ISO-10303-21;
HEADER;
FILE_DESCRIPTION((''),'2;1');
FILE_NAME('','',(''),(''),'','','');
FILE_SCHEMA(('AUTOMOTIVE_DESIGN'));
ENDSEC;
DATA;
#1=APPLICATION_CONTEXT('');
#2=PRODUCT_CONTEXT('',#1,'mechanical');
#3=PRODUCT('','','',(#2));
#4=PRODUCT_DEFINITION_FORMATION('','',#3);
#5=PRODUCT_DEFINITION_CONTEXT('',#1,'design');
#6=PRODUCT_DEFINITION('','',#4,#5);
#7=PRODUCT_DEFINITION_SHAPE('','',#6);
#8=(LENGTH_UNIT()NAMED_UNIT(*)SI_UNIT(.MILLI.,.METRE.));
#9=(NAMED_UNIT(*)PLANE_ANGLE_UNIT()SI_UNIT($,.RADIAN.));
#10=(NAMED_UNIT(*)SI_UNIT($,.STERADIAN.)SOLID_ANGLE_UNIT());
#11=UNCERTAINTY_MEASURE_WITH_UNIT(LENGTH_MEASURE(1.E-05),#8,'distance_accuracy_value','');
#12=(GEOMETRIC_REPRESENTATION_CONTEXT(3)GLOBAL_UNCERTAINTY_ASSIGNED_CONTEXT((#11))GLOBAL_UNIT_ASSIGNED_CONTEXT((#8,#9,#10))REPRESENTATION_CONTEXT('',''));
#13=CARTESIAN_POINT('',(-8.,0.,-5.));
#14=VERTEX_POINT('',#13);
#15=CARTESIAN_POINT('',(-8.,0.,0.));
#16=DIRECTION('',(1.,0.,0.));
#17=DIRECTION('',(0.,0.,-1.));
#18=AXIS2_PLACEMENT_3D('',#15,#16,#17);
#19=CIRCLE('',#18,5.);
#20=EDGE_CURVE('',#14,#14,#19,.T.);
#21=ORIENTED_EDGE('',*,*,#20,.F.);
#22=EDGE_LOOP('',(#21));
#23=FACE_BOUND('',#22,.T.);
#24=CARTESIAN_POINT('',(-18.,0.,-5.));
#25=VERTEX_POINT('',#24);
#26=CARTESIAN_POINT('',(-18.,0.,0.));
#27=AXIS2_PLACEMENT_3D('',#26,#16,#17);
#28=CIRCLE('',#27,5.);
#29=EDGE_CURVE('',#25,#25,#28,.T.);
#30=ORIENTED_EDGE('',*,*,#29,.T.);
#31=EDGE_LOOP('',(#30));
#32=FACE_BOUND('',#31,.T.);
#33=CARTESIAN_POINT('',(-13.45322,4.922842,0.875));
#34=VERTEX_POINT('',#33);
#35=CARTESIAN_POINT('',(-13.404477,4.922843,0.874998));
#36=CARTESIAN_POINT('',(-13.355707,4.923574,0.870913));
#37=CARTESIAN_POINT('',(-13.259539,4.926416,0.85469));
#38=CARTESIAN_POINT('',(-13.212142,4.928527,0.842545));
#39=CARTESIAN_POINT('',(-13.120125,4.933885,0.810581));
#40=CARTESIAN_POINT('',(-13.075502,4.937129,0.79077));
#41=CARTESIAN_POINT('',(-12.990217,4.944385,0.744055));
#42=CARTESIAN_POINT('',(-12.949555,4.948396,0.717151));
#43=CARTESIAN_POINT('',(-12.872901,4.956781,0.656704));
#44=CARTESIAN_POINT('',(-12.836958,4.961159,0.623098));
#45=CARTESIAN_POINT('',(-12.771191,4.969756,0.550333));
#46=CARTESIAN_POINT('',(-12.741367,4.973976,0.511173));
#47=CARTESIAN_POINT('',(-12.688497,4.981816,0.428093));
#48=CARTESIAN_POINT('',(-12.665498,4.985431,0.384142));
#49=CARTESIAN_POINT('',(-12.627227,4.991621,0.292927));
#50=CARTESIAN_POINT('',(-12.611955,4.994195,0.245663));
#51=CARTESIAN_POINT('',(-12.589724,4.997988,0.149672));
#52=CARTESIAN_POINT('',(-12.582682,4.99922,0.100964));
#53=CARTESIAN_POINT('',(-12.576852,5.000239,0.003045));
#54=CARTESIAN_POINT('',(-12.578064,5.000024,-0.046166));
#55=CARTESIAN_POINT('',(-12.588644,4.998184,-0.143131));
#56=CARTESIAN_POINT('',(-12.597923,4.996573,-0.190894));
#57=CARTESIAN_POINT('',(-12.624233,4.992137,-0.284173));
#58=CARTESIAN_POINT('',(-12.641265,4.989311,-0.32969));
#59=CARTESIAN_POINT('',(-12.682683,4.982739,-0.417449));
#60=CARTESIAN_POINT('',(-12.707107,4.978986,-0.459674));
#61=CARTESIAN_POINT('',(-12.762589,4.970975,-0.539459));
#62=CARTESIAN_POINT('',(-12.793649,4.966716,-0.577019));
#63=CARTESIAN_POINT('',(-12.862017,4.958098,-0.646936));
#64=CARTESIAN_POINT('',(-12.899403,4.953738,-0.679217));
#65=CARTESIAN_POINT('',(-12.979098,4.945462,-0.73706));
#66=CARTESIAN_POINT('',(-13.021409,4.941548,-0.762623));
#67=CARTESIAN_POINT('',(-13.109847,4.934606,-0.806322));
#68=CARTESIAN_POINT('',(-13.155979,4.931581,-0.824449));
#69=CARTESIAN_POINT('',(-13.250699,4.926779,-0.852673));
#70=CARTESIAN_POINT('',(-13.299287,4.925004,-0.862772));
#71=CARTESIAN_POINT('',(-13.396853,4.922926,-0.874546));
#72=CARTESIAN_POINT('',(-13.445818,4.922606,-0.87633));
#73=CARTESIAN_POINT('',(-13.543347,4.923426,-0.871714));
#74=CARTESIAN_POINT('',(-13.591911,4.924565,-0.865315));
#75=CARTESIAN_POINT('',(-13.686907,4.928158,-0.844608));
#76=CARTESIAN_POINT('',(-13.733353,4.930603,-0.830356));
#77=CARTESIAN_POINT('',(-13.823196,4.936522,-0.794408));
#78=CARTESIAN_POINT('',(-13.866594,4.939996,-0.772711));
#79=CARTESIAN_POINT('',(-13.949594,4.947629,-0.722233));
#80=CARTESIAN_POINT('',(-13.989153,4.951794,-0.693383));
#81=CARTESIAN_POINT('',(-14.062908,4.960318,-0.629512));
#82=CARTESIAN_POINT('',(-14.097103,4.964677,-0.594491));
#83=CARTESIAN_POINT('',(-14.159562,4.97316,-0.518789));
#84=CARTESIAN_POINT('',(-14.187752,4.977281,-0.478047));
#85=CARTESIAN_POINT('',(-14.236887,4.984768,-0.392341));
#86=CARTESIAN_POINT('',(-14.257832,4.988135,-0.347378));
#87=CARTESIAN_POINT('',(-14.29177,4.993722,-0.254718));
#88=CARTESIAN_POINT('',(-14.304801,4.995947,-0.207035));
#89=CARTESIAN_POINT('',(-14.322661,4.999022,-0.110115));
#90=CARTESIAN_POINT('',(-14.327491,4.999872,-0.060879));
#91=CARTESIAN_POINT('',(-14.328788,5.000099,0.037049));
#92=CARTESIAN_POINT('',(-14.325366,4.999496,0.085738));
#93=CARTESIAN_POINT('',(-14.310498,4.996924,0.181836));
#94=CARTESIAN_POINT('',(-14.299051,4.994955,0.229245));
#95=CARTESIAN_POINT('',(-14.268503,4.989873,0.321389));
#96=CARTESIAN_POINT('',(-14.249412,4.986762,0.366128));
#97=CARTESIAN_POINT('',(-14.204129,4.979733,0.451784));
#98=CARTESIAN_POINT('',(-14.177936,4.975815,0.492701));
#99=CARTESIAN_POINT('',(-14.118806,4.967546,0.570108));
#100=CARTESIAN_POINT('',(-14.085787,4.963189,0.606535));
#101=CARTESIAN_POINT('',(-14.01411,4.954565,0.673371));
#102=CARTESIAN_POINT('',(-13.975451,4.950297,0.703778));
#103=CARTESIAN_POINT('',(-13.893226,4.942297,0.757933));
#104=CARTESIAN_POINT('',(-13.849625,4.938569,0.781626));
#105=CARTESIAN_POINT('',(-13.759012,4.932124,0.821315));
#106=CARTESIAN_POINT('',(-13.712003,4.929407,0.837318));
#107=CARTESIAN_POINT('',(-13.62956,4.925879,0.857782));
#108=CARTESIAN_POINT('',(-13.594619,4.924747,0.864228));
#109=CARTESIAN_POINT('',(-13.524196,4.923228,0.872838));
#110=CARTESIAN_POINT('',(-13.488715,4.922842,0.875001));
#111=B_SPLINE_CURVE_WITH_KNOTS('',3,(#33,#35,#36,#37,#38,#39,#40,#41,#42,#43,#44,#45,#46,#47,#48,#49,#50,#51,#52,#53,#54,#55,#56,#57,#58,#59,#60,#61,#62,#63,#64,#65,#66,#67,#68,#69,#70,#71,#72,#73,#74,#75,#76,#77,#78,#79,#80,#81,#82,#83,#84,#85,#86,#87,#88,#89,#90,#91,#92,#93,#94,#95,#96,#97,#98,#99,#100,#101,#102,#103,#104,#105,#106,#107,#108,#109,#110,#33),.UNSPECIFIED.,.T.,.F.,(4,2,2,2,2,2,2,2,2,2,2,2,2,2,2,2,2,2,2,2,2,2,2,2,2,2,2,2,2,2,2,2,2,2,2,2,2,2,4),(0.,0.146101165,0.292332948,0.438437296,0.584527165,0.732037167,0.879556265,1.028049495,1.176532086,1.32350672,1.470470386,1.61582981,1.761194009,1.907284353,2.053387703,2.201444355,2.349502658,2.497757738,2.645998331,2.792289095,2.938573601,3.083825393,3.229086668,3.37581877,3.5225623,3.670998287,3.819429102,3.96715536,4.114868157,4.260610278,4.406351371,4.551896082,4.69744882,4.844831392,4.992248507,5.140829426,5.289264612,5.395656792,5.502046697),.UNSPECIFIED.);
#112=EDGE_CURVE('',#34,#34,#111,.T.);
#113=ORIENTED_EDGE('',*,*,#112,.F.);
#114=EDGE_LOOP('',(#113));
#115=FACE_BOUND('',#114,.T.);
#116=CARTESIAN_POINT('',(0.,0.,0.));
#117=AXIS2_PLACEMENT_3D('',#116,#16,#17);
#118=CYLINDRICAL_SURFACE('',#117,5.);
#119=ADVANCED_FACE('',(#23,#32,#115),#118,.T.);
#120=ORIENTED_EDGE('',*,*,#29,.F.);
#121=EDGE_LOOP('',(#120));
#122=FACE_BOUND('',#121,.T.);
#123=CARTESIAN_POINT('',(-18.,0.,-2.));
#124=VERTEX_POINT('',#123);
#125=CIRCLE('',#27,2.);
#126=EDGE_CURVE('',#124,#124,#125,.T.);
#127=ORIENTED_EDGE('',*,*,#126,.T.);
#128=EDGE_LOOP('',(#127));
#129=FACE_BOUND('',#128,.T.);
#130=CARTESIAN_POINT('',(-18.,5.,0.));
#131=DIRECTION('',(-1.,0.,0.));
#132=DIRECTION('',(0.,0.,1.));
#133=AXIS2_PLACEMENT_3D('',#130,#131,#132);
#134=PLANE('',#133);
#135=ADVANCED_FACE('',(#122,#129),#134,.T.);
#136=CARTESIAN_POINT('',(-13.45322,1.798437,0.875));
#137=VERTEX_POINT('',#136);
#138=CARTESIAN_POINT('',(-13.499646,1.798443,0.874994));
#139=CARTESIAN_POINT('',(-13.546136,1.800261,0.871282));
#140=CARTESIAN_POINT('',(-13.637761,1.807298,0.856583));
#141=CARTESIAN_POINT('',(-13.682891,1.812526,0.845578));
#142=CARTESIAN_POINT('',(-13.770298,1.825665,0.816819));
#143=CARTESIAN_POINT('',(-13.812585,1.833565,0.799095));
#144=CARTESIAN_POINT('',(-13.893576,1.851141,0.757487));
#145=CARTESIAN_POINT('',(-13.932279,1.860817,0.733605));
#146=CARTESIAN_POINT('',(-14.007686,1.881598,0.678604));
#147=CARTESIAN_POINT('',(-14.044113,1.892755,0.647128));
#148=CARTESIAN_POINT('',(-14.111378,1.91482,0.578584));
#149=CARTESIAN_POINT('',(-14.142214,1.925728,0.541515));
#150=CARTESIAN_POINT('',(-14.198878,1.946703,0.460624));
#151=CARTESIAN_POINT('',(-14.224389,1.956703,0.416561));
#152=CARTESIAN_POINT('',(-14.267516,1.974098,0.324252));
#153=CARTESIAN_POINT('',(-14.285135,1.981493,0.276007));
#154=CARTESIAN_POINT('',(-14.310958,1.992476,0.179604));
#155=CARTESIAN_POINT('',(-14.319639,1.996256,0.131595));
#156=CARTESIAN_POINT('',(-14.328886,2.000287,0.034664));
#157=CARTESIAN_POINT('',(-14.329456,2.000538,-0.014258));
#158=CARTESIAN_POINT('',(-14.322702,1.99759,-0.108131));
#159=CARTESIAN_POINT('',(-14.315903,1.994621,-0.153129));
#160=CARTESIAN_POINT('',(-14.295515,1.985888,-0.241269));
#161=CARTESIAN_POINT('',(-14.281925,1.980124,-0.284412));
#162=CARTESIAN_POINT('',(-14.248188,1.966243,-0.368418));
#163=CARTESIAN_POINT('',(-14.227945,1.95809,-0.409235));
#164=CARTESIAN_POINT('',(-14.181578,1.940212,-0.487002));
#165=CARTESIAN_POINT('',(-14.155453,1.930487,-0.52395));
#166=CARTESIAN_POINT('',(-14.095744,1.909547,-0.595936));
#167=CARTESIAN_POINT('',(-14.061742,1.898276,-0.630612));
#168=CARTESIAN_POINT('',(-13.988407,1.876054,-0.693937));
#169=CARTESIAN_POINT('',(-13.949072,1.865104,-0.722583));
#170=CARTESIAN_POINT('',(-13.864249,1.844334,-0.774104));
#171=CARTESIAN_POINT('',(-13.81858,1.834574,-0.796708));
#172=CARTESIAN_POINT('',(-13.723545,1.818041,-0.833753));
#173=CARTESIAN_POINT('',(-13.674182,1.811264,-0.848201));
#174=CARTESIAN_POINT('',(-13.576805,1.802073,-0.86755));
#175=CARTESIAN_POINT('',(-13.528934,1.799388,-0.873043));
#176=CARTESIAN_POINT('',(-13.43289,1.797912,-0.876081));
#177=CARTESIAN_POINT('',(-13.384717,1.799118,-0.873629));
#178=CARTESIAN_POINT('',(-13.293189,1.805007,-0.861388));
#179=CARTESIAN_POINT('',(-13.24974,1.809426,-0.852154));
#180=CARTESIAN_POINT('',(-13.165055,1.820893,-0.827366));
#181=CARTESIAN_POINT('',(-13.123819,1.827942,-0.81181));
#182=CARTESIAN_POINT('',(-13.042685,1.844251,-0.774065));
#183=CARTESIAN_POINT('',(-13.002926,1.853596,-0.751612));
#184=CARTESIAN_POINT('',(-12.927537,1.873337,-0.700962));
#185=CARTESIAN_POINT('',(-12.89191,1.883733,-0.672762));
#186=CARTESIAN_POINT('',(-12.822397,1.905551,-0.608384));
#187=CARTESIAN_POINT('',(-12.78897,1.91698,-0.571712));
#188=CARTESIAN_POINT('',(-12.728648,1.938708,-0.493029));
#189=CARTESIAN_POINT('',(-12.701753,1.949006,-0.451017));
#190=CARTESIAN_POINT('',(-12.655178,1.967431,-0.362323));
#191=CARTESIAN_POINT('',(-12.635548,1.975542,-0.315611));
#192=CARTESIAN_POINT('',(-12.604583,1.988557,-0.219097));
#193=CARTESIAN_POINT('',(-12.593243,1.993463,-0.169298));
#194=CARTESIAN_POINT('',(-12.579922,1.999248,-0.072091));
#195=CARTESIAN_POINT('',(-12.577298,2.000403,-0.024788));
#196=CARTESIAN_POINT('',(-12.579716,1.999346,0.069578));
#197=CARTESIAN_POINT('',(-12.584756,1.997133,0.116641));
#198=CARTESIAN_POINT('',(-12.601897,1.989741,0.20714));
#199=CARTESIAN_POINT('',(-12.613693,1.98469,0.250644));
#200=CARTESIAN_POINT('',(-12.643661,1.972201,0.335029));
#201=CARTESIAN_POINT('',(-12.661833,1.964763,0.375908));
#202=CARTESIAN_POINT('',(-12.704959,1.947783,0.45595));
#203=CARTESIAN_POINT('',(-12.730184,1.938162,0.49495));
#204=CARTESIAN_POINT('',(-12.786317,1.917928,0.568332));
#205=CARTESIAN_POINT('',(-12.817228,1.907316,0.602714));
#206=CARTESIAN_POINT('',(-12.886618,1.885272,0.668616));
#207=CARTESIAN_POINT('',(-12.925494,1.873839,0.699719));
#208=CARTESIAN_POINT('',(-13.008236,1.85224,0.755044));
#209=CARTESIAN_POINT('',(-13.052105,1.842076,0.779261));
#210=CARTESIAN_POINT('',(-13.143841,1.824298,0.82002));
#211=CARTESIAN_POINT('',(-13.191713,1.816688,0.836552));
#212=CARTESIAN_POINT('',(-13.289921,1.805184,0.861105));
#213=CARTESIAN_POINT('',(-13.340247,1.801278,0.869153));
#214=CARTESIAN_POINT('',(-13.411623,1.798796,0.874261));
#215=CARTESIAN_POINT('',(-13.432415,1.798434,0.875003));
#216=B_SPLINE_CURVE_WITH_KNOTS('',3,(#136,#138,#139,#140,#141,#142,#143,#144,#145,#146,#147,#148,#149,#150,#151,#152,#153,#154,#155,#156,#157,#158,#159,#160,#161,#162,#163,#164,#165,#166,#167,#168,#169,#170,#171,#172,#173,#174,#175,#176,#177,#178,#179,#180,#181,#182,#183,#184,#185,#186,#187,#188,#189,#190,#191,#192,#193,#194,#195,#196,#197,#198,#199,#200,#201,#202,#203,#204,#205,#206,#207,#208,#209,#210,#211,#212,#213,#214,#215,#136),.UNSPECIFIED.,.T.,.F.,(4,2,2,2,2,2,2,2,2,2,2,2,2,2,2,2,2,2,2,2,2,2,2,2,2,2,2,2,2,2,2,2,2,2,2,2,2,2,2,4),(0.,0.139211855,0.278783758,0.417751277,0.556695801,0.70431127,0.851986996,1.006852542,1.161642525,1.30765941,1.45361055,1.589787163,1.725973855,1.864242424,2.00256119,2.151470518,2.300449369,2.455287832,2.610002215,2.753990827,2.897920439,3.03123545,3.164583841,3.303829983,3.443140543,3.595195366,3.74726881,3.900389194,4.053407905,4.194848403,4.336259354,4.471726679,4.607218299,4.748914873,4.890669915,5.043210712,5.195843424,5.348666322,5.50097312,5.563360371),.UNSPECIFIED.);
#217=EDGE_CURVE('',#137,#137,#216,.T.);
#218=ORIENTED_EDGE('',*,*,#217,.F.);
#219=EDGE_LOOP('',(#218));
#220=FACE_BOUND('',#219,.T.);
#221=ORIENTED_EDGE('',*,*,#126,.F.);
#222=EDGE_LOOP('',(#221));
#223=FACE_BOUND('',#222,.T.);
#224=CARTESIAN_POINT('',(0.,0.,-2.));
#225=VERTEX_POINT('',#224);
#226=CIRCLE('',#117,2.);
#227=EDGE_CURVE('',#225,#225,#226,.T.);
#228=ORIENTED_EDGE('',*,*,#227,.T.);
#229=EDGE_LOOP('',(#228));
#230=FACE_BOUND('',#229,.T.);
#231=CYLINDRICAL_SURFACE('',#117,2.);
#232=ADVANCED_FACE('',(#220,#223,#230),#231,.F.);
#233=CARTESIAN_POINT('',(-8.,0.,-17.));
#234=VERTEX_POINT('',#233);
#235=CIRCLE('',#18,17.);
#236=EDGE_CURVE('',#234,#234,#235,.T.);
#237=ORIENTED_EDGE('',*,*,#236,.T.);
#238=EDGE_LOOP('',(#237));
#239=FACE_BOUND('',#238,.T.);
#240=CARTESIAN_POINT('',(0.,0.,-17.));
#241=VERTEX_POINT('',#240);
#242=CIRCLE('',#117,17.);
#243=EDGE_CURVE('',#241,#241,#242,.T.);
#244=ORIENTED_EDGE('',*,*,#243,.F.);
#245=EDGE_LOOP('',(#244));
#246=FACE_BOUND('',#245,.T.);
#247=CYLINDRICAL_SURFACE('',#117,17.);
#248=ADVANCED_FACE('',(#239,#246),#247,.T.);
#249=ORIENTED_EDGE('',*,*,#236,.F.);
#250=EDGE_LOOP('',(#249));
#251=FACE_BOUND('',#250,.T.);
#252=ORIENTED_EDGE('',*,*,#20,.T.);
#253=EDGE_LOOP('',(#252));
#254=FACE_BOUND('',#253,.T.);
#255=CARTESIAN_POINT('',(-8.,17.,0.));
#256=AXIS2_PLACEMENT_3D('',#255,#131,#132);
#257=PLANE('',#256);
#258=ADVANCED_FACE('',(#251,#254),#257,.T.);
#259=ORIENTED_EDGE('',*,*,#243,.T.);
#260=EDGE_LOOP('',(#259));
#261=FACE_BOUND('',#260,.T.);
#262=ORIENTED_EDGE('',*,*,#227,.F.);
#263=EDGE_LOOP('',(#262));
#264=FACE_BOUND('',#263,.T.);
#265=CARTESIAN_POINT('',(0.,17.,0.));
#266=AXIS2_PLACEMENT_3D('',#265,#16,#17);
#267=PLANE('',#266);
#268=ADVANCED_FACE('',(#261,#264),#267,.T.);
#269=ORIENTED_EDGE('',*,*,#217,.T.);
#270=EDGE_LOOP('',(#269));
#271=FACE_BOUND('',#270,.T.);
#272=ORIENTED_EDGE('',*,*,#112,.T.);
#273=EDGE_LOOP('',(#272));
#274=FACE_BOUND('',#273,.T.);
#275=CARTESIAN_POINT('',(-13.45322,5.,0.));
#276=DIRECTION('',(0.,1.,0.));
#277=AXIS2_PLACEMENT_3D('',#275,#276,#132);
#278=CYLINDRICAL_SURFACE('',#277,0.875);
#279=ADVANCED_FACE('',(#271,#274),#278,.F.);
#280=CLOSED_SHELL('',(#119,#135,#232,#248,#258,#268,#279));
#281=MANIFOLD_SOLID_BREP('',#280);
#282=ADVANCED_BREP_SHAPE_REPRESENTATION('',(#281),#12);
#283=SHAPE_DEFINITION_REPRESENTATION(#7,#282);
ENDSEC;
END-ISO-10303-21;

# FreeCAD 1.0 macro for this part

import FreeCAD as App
import Part
import Sketcher

V = App.Vector


def add_polygon(sketch, points):
    """Adds a closed chain of lines whose ends are joined by coincident constraints."""
    first, n = sketch.GeometryCount, len(points)
    for a, b in zip(points, points[1:] + points[:1]):
        sketch.addGeometry(Part.LineSegment(App.Vector(*a, 0), App.Vector(*b, 0)), False)
    for i in range(n):
        sketch.addConstraint(Sketcher.Constraint("Coincident", first + i, 2, first + (i + 1) % n, 1))

doc = App.newDocument("Part")
body = doc.addObject("PartDesign::Body", "Body")

# Sketch on XY plane
sketch1 = body.newObject("Sketcher::SketchObject", "Sketch")
sketch1.AttachmentSupport = (doc.getObject("XY_Plane"), [""])
sketch1.MapMode = "FlatFace"
add_polygon(sketch1, [(0, 2), (0, 17), (-8, 17), (-8, 5), (-18, 5), (-18, 2)])  # lines 0-5
sketch1.addConstraint(Sketcher.Constraint("Vertical", 0))
sketch1.addConstraint(Sketcher.Constraint("Horizontal", 1))
sketch1.addConstraint(Sketcher.Constraint("Vertical", 2))
sketch1.addConstraint(Sketcher.Constraint("Horizontal", 3))
sketch1.addConstraint(Sketcher.Constraint("Vertical", 4))
sketch1.addConstraint(Sketcher.Constraint("Horizontal", 5))
sketch1.addConstraint(Sketcher.Constraint("PointOnObject", 0, 2, -2))
sketch1.addConstraint(Sketcher.Constraint("DistanceX", 1, 2, 1, 1, 8.0))
sketch1.addConstraint(Sketcher.Constraint("DistanceX", 3, 2, 3, 1, 10.0))
sketch1.addConstraint(Sketcher.Constraint("DistanceY", 0, 1, 0, 2, 15.0))
sketch1.addConstraint(Sketcher.Constraint("DistanceY", 2, 2, 2, 1, 12.0))
sketch1.addConstraint(Sketcher.Constraint("DistanceY", -1, 1, 0, 2, 17.0))
revolution = body.newObject("PartDesign::Revolution", "Revolution")
revolution.Profile = sketch1
revolution.ReferenceAxis = (sketch1, ["H_Axis"])
revolution.Angle = 360

# Sketch on XZ plane
sketch2 = body.newObject("Sketcher::SketchObject", "Sketch001")
sketch2.AttachmentSupport = (doc.getObject("XZ_Plane"), [""])
sketch2.MapMode = "FlatFace"
sketch2.AttachmentOffset = App.Placement(V(0, 0, -5), App.Rotation())
sketch2.addGeometry(Part.Circle(V(-13.5, 0, 0), V(0, 0, 1), 0.9), False)
sketch2.addConstraint(Sketcher.Constraint("PointOnObject", 0, 3, -1))
sketch2.addConstraint(Sketcher.Constraint("Diameter", 0, 1.75))
sketch2.addConstraint(Sketcher.Constraint("DistanceX", 0, 3, -1, 1, 13.45322))
pocket1 = body.newObject("PartDesign::Pocket", "Pocket")
pocket1.Profile = sketch2
pocket1.Length = 3.201563
pocket1.Reversed = True

doc.recompute()
